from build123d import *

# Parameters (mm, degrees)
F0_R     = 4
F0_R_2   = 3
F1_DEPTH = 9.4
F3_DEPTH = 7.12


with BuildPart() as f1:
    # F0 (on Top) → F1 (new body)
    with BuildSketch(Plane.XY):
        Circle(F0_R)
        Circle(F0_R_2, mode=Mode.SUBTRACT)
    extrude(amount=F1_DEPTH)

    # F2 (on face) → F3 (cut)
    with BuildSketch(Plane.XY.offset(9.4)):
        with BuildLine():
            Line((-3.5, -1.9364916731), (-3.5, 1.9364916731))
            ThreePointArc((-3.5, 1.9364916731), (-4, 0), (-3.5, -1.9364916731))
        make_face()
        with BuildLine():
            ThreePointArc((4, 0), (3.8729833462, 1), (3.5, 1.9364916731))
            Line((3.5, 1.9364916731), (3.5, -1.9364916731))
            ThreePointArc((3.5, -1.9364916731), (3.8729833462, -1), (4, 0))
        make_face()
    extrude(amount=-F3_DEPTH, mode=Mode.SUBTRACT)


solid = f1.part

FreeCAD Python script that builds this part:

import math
import FreeCAD as App
import Part
import Sketcher
from FreeCAD import Vector
Q = App.Units.Quantity

doc = App.newDocument("Part")
params = doc.addObject("Spreadsheet::Sheet", "Params")
for row, (alias, value) in enumerate([
    ("sketch1_diameter", "8 mm"),
    ("sketch1_diameter2", "6 mm"),
    ("pad1_length", "9.4 mm"),
    ("sketch2_radius", "4 mm"),
    ("pocket1_length", "7.12 mm"),
], start=1):
    params.set(f"A{row}", alias)
    params.set(f"B{row}", "=" + value)
    params.setAlias(f"B{row}", alias)

body = doc.addObject("PartDesign::Body", "Body")

sketch1 = body.newObject("Sketcher::SketchObject", "Sketch")
sketch1.AttachmentSupport = (doc.getObject("XY_Plane"), [""])
sketch1.MapMode = "FlatFace"
sketch1.addGeometry([
    Part.Circle(Vector(0, 0, 0), Vector(0, 0, 1), 4),
    Part.Circle(Vector(0, 0, 0), Vector(0, 0, 1), 3),
], False)
sketch1.addConstraint([
    Sketcher.Constraint("Coincident", 0, 3, -1, 1),
    Sketcher.Constraint("Coincident", 1, 3, -1, 1),
    Sketcher.Constraint("Diameter", 0, Q("8 mm")),
    Sketcher.Constraint("Diameter", 1, Q("6 mm")),
])
sketch1.setExpression("Constraints[2]", "Params.sketch1_diameter")
sketch1.setExpression("Constraints[3]", "Params.sketch1_diameter2")
pad1 = body.newObject("PartDesign::Pad", "Pad")
pad1.Profile = sketch1
pad1.setExpression("Length", "Params.pad1_length")

sketch2 = body.newObject("Sketcher::SketchObject", "Sketch001")
sketch2.AttachmentSupport = (doc.getObject("XY_Plane"), [""])
sketch2.MapMode = "FlatFace"
sketch2.AttachmentOffset = App.Placement(Vector(0, 0, 9.4), App.Rotation())
sketch2.addGeometry([
    Part.LineSegment(Vector(-3.5, -1.936492, 0), Vector(-3.5, 1.936492, 0)),
    Part.ArcOfCircle(Part.Circle(Vector(0, 0, 0), Vector(0, 0, 1), 4), math.radians(151.044976), math.radians(208.955024)),
    Part.ArcOfCircle(Part.Circle(Vector(0, 0, 0), Vector(0, 0, 1), 4), math.radians(0), math.radians(28.955024)),
    Part.LineSegment(Vector(3.5, 1.936492, 0), Vector(3.5, -1.936492, 0)),
    Part.ArcOfCircle(Part.Circle(Vector(0, 0, 0), Vector(0, 0, 1), 4), math.radians(-28.955024), math.radians(0)),
], False)
sketch2.addConstraint([
    Sketcher.Constraint("Coincident", 0, 1, 1, 2),
    Sketcher.Constraint("Coincident", 1, 1, 0, 2),
    Sketcher.Constraint("Coincident", 2, 2, 3, 1),
    Sketcher.Constraint("Coincident", 3, 2, 4, 1),
    Sketcher.Constraint("Tangent", 4, 2, 2, 1),
    Sketcher.Constraint("Vertical", 0),
    Sketcher.Constraint("Vertical", 3),
    Sketcher.Constraint("Coincident", 1, 3, -1, 1),
    Sketcher.Constraint("Coincident", 2, 3, -1, 1),
    Sketcher.Constraint("Equal", 1, 2),
    Sketcher.Constraint("Equal", 2, 4),
    Sketcher.Constraint("PointOnObject", 4, 2, -1),
    Sketcher.Constraint("Horizontal", 1, 1, 2, 2),
    Sketcher.Constraint("Radius", 1, Q("4 mm")),
    Sketcher.Constraint("DistanceX", 1, 1, 2, 2, Q("7 mm")),
])
sketch2.setExpression("Constraints[13]", "Params.sketch2_radius")
pocket1 = body.newObject("PartDesign::Pocket", "Pocket")
pocket1.Profile = sketch2
pocket1.setExpression("Length", "Params.pocket1_length")

doc.recompute()
